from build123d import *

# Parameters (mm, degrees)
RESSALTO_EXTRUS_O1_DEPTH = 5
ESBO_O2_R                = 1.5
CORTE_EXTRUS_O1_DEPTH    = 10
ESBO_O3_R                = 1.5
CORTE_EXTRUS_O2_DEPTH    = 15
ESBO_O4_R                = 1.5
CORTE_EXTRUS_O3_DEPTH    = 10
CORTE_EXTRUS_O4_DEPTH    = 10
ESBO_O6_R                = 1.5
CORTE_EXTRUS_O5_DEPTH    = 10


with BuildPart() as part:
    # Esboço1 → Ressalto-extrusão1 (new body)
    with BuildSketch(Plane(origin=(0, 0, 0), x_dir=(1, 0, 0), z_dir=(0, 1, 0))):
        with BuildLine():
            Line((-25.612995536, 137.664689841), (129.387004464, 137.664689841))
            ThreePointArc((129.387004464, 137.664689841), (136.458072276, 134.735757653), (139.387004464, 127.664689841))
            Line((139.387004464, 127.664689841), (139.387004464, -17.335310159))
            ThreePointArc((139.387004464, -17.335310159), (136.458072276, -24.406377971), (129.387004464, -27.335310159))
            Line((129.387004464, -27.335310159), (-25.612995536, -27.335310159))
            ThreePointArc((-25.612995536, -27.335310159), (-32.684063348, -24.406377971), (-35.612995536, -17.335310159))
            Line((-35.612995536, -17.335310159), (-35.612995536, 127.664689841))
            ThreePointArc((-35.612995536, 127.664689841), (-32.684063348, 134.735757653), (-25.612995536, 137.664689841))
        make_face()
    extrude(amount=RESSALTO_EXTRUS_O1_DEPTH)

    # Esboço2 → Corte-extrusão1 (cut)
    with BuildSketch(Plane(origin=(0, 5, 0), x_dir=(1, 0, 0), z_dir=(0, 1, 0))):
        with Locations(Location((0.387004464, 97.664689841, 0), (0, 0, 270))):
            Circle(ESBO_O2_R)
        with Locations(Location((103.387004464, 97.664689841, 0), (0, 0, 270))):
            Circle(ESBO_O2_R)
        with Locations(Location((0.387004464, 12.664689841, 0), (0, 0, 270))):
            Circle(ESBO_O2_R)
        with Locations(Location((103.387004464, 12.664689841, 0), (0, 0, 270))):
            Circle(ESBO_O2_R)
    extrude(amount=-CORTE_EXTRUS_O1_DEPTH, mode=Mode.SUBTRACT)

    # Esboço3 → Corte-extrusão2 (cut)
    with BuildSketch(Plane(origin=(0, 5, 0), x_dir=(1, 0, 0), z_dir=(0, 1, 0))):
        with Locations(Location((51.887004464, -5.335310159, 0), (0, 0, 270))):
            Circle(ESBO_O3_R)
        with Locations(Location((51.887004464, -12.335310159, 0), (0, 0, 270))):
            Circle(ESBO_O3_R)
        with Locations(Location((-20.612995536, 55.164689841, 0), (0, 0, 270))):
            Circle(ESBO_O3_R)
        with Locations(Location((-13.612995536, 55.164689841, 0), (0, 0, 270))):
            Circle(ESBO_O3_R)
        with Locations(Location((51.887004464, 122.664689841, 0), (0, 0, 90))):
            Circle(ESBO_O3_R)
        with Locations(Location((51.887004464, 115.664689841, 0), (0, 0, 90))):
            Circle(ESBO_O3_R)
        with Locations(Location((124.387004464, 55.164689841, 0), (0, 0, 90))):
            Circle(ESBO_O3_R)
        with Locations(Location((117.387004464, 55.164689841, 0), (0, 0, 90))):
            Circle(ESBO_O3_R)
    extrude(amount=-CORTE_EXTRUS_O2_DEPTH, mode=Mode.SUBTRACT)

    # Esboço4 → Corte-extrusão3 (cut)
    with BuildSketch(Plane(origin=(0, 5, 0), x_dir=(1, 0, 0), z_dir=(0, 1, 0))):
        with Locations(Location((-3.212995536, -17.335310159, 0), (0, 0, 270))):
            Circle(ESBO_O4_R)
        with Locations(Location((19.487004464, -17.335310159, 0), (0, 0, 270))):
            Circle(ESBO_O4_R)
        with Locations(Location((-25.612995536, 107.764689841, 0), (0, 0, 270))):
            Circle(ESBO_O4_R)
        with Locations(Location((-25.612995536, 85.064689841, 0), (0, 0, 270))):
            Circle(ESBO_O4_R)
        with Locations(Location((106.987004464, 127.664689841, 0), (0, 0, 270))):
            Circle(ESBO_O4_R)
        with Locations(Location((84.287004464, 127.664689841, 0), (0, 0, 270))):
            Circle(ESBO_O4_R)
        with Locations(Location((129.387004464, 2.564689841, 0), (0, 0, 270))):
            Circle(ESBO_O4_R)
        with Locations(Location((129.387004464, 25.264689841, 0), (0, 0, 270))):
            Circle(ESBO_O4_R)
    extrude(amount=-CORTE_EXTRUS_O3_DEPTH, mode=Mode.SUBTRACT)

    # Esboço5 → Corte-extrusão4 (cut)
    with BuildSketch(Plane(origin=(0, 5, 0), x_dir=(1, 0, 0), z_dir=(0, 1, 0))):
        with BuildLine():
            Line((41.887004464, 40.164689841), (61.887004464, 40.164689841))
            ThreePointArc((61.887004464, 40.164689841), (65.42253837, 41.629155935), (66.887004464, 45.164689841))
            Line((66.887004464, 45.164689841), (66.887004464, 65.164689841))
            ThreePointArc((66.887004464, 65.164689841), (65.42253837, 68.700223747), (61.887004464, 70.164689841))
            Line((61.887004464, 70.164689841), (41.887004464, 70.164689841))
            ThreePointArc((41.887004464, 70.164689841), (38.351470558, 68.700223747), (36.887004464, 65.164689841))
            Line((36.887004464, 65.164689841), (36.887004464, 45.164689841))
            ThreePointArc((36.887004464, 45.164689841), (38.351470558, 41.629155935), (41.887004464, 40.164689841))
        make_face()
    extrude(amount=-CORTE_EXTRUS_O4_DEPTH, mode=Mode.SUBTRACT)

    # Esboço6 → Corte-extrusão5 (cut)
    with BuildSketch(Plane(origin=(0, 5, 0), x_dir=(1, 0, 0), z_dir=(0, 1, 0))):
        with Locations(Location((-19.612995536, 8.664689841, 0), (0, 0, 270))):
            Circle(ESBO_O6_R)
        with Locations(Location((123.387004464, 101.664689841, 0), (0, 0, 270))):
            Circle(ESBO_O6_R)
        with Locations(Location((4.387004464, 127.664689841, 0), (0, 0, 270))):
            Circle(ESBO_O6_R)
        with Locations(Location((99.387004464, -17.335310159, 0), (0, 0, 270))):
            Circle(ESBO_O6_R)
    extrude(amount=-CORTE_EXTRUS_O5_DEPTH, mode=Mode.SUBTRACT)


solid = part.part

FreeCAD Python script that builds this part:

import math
import FreeCAD as App
import Part
import Sketcher
Q = App.Units.Quantity

doc = App.newDocument("Part")
body = doc.addObject("PartDesign::Body", "Body")

sketch1 = body.newObject("Sketcher::SketchObject", "Sketch")
sketch1.AttachmentSupport = (doc.getObject("XZ_Plane"), [""])
sketch1.MapMode = "FlatFace"
sketch1.addGeometry([
    Part.LineSegment(App.Vector(129, -138, 0), App.Vector(-26, -138, 0)),
    Part.ArcOfCircle(Part.Circle(App.Vector(-26, -128, 0), App.Vector(0, 0, 1), 10), math.radians(180), math.radians(270)),
    Part.LineSegment(App.Vector(-36, -128, 0), App.Vector(-36, 17, 0)),
    Part.ArcOfCircle(Part.Circle(App.Vector(-26, 17, 0), App.Vector(0, 0, 1), 10), math.radians(90), math.radians(180)),
    Part.LineSegment(App.Vector(-26, 27, 0), App.Vector(129, 27, 0)),
    Part.ArcOfCircle(Part.Circle(App.Vector(129, 17, 0), App.Vector(0, 0, 1), 10), math.radians(0), math.radians(90)),
    Part.LineSegment(App.Vector(139, 17, 0), App.Vector(139, -128, 0)),
    Part.ArcOfCircle(Part.Circle(App.Vector(129, -128, 0), App.Vector(0, 0, 1), 10), math.radians(-90), math.radians(0)),
], False)
sketch1.addConstraint([
    Sketcher.Constraint("Tangent", 0, 2, 1, 2),
    Sketcher.Constraint("Tangent", 1, 1, 2, 1),
    Sketcher.Constraint("Tangent", 2, 2, 3, 2),
    Sketcher.Constraint("Tangent", 3, 1, 4, 1),
    Sketcher.Constraint("Tangent", 4, 2, 5, 2),
    Sketcher.Constraint("Tangent", 5, 1, 6, 1),
    Sketcher.Constraint("Tangent", 6, 2, 7, 2),
    Sketcher.Constraint("Tangent", 7, 1, 0, 1),
    Sketcher.Constraint("Horizontal", 0),
    Sketcher.Constraint("Vertical", 2),
    Sketcher.Constraint("Horizontal", 4),
    Sketcher.Constraint("Vertical", 6),
    Sketcher.Constraint("Equal", 1, 3),
    Sketcher.Constraint("Equal", 3, 5),
    Sketcher.Constraint("Equal", 5, 7),
    Sketcher.Constraint("Radius", 1, Q("10 mm")),
    Sketcher.Constraint("DistanceX", 0, 2, 0, 1, Q("155 mm")),
    Sketcher.Constraint("DistanceY", 2, 1, 2, 2, Q("145 mm")),
    Sketcher.Constraint("DistanceY", 1, 3, -1, 1, Q("127.66469 mm")),
    Sketcher.Constraint("DistanceX", 1, 3, -1, 1, Q("25.612996 mm")),
])
pad1 = body.newObject("PartDesign::Pad", "Pad")
pad1.Profile = sketch1
pad1.Length = 5
pad1.Reversed = True

sketch2 = body.newObject("Sketcher::SketchObject", "Sketch001")
sketch2.AttachmentSupport = (doc.getObject("XZ_Plane"), [""])
sketch2.MapMode = "FlatFace"
sketch2.AttachmentOffset = App.Placement(App.Vector(0, 0, -5), App.Rotation())
sketch2.addGeometry([
    Part.Circle(App.Vector(0.4, -97.7, 0), App.Vector(0, 0, 1), 1.5),
    Part.Circle(App.Vector(103.4, -97.7, 0), App.Vector(0, 0, 1), 1.5),
    Part.Circle(App.Vector(0.4, -12.7, 0), App.Vector(0, 0, 1), 1.5),
    Part.Circle(App.Vector(103.4, -12.7, 0), App.Vector(0, 0, 1), 1.5),
], False)
sketch2.addConstraint([
    Sketcher.Constraint("Equal", 0, 1),
    Sketcher.Constraint("Equal", 1, 2),
    Sketcher.Constraint("Equal", 2, 3),
    Sketcher.Constraint("Horizontal", 0, 3, 1, 3),
    Sketcher.Constraint("Horizontal", 2, 3, 3, 3),
    Sketcher.Constraint("Vertical", 0, 3, 2, 3),
    Sketcher.Constraint("Vertical", 1, 3, 3, 3),
    Sketcher.Constraint("Diameter", 0, Q("3 mm")),
    Sketcher.Constraint("DistanceX", 0, 3, 1, 3, Q("103 mm")),
    Sketcher.Constraint("DistanceY", 0, 3, 2, 3, Q("85 mm")),
    Sketcher.Constraint("DistanceY", 0, 3, -1, 1, Q("97.66469 mm")),
    Sketcher.Constraint("DistanceX", -1, 1, 0, 3, Q("0.387004 mm")),
])
pocket1 = body.newObject("PartDesign::Pocket", "Pocket")
pocket1.Profile = sketch2
pocket1.Length = 10
pocket1.Reversed = True

sketch3 = body.newObject("Sketcher::SketchObject", "Sketch002")
sketch3.AttachmentSupport = (doc.getObject("XZ_Plane"), [""])
sketch3.MapMode = "FlatFace"
sketch3.AttachmentOffset = App.Placement(App.Vector(0, 0, -5), App.Rotation())
sketch3.addGeometry([
    Part.Circle(App.Vector(51.9, 5.3, 0), App.Vector(0, 0, 1), 1.5),
    Part.Circle(App.Vector(51.9, 12.3, 0), App.Vector(0, 0, 1), 1.5),
    Part.Circle(App.Vector(-20.6, -55.2, 0), App.Vector(0, 0, 1), 1.5),
    Part.Circle(App.Vector(-13.6, -55.2, 0), App.Vector(0, 0, 1), 1.5),
    Part.Circle(App.Vector(51.9, -122.7, 0), App.Vector(0, 0, 1), 1.5),
    Part.Circle(App.Vector(51.9, -115.7, 0), App.Vector(0, 0, 1), 1.5),
    Part.Circle(App.Vector(124.4, -55.2, 0), App.Vector(0, 0, 1), 1.5),
    Part.Circle(App.Vector(117.4, -55.2, 0), App.Vector(0, 0, 1), 1.5),
], False)
sketch3.addConstraint([
    Sketcher.Constraint("Equal", 0, 1),
    Sketcher.Constraint("Equal", 1, 2),
    Sketcher.Constraint("Equal", 2, 3),
    Sketcher.Constraint("Equal", 3, 4),
    Sketcher.Constraint("Equal", 4, 5),
    Sketcher.Constraint("Equal", 5, 6),
    Sketcher.Constraint("Equal", 6, 7),
    Sketcher.Constraint("Horizontal", 2, 3, 3, 3),
    Sketcher.Constraint("Horizontal", 3, 3, 6, 3),
    Sketcher.Constraint("Horizontal", 6, 3, 7, 3),
    Sketcher.Constraint("Vertical", 0, 3, 1, 3),
    Sketcher.Constraint("Vertical", 1, 3, 4, 3),
    Sketcher.Constraint("Vertical", 4, 3, 5, 3),
    Sketcher.Constraint("Diameter", 0, Q("3 mm")),
    Sketcher.Constraint("DistanceY", 0, 3, 1, 3, Q("7 mm")),
    Sketcher.Constraint("DistanceX", 2, 3, 3, 3, Q("7 mm")),
    Sketcher.Constraint("DistanceY", 4, 3, 0, 3, Q("128 mm")),
    Sketcher.Constraint("DistanceY", 4, 3, 5, 3, Q("7 mm")),
    Sketcher.Constraint("DistanceX", 3, 3, 6, 3, Q("138 mm")),
    Sketcher.Constraint("DistanceX", 7, 3, 6, 3, Q("7 mm")),
    Sketcher.Constraint("DistanceX", 2, 3, 0, 3, Q("72.5 mm")),
    Sketcher.Constraint("DistanceY", 2, 3, 0, 3, Q("60.5 mm")),
    Sketcher.Constraint("DistanceY", -1, 1, 0, 3, Q("5.33531 mm")),
    Sketcher.Constraint("DistanceX", -1, 1, 0, 3, Q("51.887004 mm")),
])
pocket2 = body.newObject("PartDesign::Pocket", "Pocket001")
pocket2.Profile = sketch3
pocket2.Length = 15
pocket2.Reversed = True

sketch4 = body.newObject("Sketcher::SketchObject", "Sketch003")
sketch4.AttachmentSupport = (doc.getObject("XZ_Plane"), [""])
sketch4.MapMode = "FlatFace"
sketch4.AttachmentOffset = App.Placement(App.Vector(0, 0, -5), App.Rotation())
sketch4.addGeometry([
    Part.Circle(App.Vector(-3.2, 17.3, 0), App.Vector(0, 0, 1), 1.5),
    Part.Circle(App.Vector(19.5, 17.3, 0), App.Vector(0, 0, 1), 1.5),
    Part.Circle(App.Vector(-25.6, -107.8, 0), App.Vector(0, 0, 1), 1.5),
    Part.Circle(App.Vector(-25.6, -85.1, 0), App.Vector(0, 0, 1), 1.5),
    Part.Circle(App.Vector(107, -127.7, 0), App.Vector(0, 0, 1), 1.5),
    Part.Circle(App.Vector(84.3, -127.7, 0), App.Vector(0, 0, 1), 1.5),
    Part.Circle(App.Vector(129.4, -2.6, 0), App.Vector(0, 0, 1), 1.5),
    Part.Circle(App.Vector(129.4, -25.3, 0), App.Vector(0, 0, 1), 1.5),
], False)
sketch4.addConstraint([
    Sketcher.Constraint("Equal", 0, 1),
    Sketcher.Constraint("Equal", 1, 2),
    Sketcher.Constraint("Equal", 2, 3),
    Sketcher.Constraint("Equal", 3, 4),
    Sketcher.Constraint("Equal", 4, 5),
    Sketcher.Constraint("Equal", 5, 6),
    Sketcher.Constraint("Equal", 6, 7),
    Sketcher.Constraint("Horizontal", 0, 3, 1, 3),
    Sketcher.Constraint("Horizontal", 4, 3, 5, 3),
    Sketcher.Constraint("Vertical", 2, 3, 3, 3),
    Sketcher.Constraint("Vertical", 6, 3, 7, 3),
    Sketcher.Constraint("Diameter", 0, Q("3 mm")),
    Sketcher.Constraint("DistanceY", 4, 3, 1, 3, Q("145 mm")),
    Sketcher.Constraint("DistanceX", 3, 3, 6, 3, Q("155 mm")),
    Sketcher.Constraint("DistanceX", 0, 3, 1, 3, Q("22.7 mm")),
    Sketcher.Constraint("DistanceX", 2, 3, 0, 3, Q("22.4 mm")),
    Sketcher.Constraint("DistanceY", 2, 3, 0, 3, Q("125.1 mm")),
    Sketcher.Constraint("DistanceY", 2, 3, 3, 3, Q("22.7 mm")),
    Sketcher.Constraint("DistanceX", 2, 3, 4, 3, Q("132.6 mm")),
    Sketcher.Constraint("DistanceX", 5, 3, 4, 3, Q("22.7 mm")),
    Sketcher.Constraint("DistanceY", 6, 3, 1, 3, Q("19.9 mm")),
    Sketcher.Constraint("DistanceY", 7, 3, 6, 3, Q("22.7 mm")),
    Sketcher.Constraint("DistanceY", -1, 1, 0, 3, Q("17.33531 mm")),
    Sketcher.Constraint("DistanceX", 0, 3, -1, 1, Q("3.212996 mm")),
])
pocket3 = body.newObject("PartDesign::Pocket", "Pocket002")
pocket3.Profile = sketch4
pocket3.Length = 10
pocket3.Reversed = True

sketch5 = body.newObject("Sketcher::SketchObject", "Sketch004")
sketch5.AttachmentSupport = (doc.getObject("XZ_Plane"), [""])
sketch5.MapMode = "FlatFace"
sketch5.AttachmentOffset = App.Placement(App.Vector(0, 0, -5), App.Rotation())
sketch5.addGeometry([
    Part.LineSegment(App.Vector(42, -40, 0), App.Vector(62, -40, 0)),
    Part.ArcOfCircle(Part.Circle(App.Vector(62, -45, 0), App.Vector(0, 0, 1), 5), math.radians(0), math.radians(90)),
    Part.LineSegment(App.Vector(67, -45, 0), App.Vector(67, -65, 0)),
    Part.ArcOfCircle(Part.Circle(App.Vector(62, -65, 0), App.Vector(0, 0, 1), 5), math.radians(-90), math.radians(0)),
    Part.LineSegment(App.Vector(62, -70, 0), App.Vector(42, -70, 0)),
    Part.ArcOfCircle(Part.Circle(App.Vector(42, -65, 0), App.Vector(0, 0, 1), 5), math.radians(180), math.radians(270)),
    Part.LineSegment(App.Vector(37, -65, 0), App.Vector(37, -45, 0)),
    Part.ArcOfCircle(Part.Circle(App.Vector(42, -45, 0), App.Vector(0, 0, 1), 5), math.radians(90), math.radians(180)),
], False)
sketch5.addConstraint([
    Sketcher.Constraint("Tangent", 0, 2, 1, 2),
    Sketcher.Constraint("Tangent", 1, 1, 2, 1),
    Sketcher.Constraint("Tangent", 2, 2, 3, 2),
    Sketcher.Constraint("Tangent", 3, 1, 4, 1),
    Sketcher.Constraint("Tangent", 4, 2, 5, 2),
    Sketcher.Constraint("Tangent", 5, 1, 6, 1),
    Sketcher.Constraint("Tangent", 6, 2, 7, 2),
    Sketcher.Constraint("Tangent", 7, 1, 0, 1),
    Sketcher.Constraint("Horizontal", 0),
    Sketcher.Constraint("Vertical", 2),
    Sketcher.Constraint("Horizontal", 4),
    Sketcher.Constraint("Vertical", 6),
    Sketcher.Constraint("Equal", 1, 3),
    Sketcher.Constraint("Equal", 3, 5),
    Sketcher.Constraint("Equal", 5, 7),
    Sketcher.Constraint("Equal", 4, 2),
    Sketcher.Constraint("Radius", 1, Q("5 mm")),
    Sketcher.Constraint("DistanceX", 0, 1, 0, 2, Q("20 mm")),
    Sketcher.Constraint("DistanceY", 1, 3, -1, 1, Q("45.16469 mm")),
    Sketcher.Constraint("DistanceX", -1, 1, 1, 3, Q("61.887004 mm")),
])
pocket4 = body.newObject("PartDesign::Pocket", "Pocket003")
pocket4.Profile = sketch5
pocket4.Length = 10
pocket4.Reversed = True

sketch6 = body.newObject("Sketcher::SketchObject", "Sketch005")
sketch6.AttachmentSupport = (doc.getObject("XZ_Plane"), [""])
sketch6.MapMode = "FlatFace"
sketch6.AttachmentOffset = App.Placement(App.Vector(0, 0, -5), App.Rotation())
sketch6.addGeometry([
    Part.Circle(App.Vector(-19.6, -8.7, 0), App.Vector(0, 0, 1), 1.5),
    Part.Circle(App.Vector(123.4, -101.7, 0), App.Vector(0, 0, 1), 1.5),
    Part.Circle(App.Vector(4.4, -127.7, 0), App.Vector(0, 0, 1), 1.5),
    Part.Circle(App.Vector(99.4, 17.3, 0), App.Vector(0, 0, 1), 1.5),
], False)
sketch6.addConstraint([
    Sketcher.Constraint("Equal", 0, 1),
    Sketcher.Constraint("Equal", 1, 2),
    Sketcher.Constraint("Equal", 2, 3),
    Sketcher.Constraint("Diameter", 0, Q("3 mm")),
    Sketcher.Constraint("DistanceX", 0, 3, 1, 3, Q("143 mm")),
    Sketcher.Constraint("DistanceY", 1, 3, 0, 3, Q("93 mm")),
    Sketcher.Constraint("DistanceX", 0, 3, 2, 3, Q("24 mm")),
    Sketcher.Constraint("DistanceY", 2, 3, 0, 3, Q("119 mm")),
    Sketcher.Constraint("DistanceX", 3, 3, 1, 3, Q("24 mm")),
    Sketcher.Constraint("DistanceY", 1, 3, 3, 3, Q("119 mm")),
    Sketcher.Constraint("DistanceY", 0, 3, -1, 1, Q("8.66469 mm")),
    Sketcher.Constraint("DistanceX", 0, 3, -1, 1, Q("19.612996 mm")),
])
pocket5 = body.newObject("PartDesign::Pocket", "Pocket004")
pocket5.Profile = sketch6
pocket5.Length = 10
pocket5.Reversed = True

doc.recompute()
